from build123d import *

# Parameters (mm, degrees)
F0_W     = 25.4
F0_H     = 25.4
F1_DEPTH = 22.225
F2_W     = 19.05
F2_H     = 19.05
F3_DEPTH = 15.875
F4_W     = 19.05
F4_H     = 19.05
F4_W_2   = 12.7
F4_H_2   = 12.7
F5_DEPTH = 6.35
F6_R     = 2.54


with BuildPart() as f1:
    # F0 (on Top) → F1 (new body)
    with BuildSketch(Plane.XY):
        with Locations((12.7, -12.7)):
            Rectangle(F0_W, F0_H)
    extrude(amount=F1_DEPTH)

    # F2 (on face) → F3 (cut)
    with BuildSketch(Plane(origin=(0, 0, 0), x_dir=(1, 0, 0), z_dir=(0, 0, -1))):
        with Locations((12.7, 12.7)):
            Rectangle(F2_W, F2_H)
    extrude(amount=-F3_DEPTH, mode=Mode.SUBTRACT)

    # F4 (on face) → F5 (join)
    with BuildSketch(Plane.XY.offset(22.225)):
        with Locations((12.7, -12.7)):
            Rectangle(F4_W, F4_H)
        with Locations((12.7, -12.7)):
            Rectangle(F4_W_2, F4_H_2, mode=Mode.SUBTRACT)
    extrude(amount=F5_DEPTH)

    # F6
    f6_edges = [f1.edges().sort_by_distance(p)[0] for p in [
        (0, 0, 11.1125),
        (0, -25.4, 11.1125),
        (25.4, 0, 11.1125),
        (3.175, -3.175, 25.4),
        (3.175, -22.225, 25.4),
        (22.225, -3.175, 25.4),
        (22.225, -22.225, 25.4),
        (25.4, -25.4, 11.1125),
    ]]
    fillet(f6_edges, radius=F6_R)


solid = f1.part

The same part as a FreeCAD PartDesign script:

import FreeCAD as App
import Part
import Sketcher
from FreeCAD import Vector
Q = App.Units.Quantity


def edges_at(feature, points):
    """Names of the edges that pass closest to the given points."""
    edges = feature.Shape.Edges
    near = lambda p: min(range(len(edges)), key=lambda i: edges[i].distToShape(Part.Vertex(*p))[0])
    return sorted({f"Edge{near(p) + 1}" for p in points})

doc = App.newDocument("Part")
params = doc.addObject("Spreadsheet::Sheet", "Params")
for row, (alias, value) in enumerate([
    ("sketch1_width", "1 in"),
    ("pad1_length", "0.875 in"),
    ("sketch2_width", "0.75 in"),
    ("pocket1_length", "0.625 in"),
    ("sketch3_width", "0.5 in"),
    ("sketch3_width2", "0.75 in"),
    ("pad2_length", "0.25 in"),
    ("fillet_radius", "0.1 in"),
], start=1):
    params.set(f"A{row}", alias)
    params.set(f"B{row}", "=" + value)
    params.setAlias(f"B{row}", alias)

body = doc.addObject("PartDesign::Body", "Body")

# Sketch on XY plane
sketch1 = body.newObject("Sketcher::SketchObject", "Sketch")
sketch1.AttachmentSupport = (doc.getObject("XY_Plane"), [""])
sketch1.MapMode = "FlatFace"
sketch1.addGeometry(Part.LineSegment(Vector(0, 0, 0), Vector(0, -25.4, 0)), False)
sketch1.addGeometry(Part.LineSegment(Vector(0, -25.4, 0), Vector(25.4, -25.4, 0)), False)
sketch1.addGeometry(Part.LineSegment(Vector(25.4, -25.4, 0), Vector(25.4, 0, 0)), False)
sketch1.addGeometry(Part.LineSegment(Vector(25.4, 0, 0), Vector(0, 0, 0)), False)
sketch1.addConstraint(Sketcher.Constraint("Coincident", 0, 2, 1, 1))
sketch1.addConstraint(Sketcher.Constraint("Coincident", 1, 2, 2, 1))
sketch1.addConstraint(Sketcher.Constraint("Coincident", 2, 2, 3, 1))
sketch1.addConstraint(Sketcher.Constraint("Coincident", 3, 2, 0, 1))
sketch1.addConstraint(Sketcher.Constraint("Vertical", 0))
sketch1.addConstraint(Sketcher.Constraint("Horizontal", 1))
sketch1.addConstraint(Sketcher.Constraint("Vertical", 2))
sketch1.addConstraint(Sketcher.Constraint("Horizontal", 3))
sketch1.addConstraint(Sketcher.Constraint("Coincident", 3, 2, -1, 1))
sketch1.addConstraint(Sketcher.Constraint("Equal", 3, 0))
sketch1.addConstraint(Sketcher.Constraint("DistanceX", 1, 1, 1, 2, Q("1 in")))
sketch1.setExpression("Constraints[10]", "Params.sketch1_width")
pad1 = body.newObject("PartDesign::Pad", "Pad")
pad1.Profile = sketch1
pad1.setExpression("Length", "Params.pad1_length")

# Sketch on XY plane
sketch2 = body.newObject("Sketcher::SketchObject", "Sketch001")
sketch2.AttachmentSupport = (doc.getObject("XY_Plane"), [""])
sketch2.MapMode = "FlatFace"
sketch2.addGeometry(Part.LineSegment(Vector(3.175, -22.225, 0), Vector(3.175, -3.175, 0)), False)
sketch2.addGeometry(Part.LineSegment(Vector(3.175, -3.175, 0), Vector(22.225, -3.175, 0)), False)
sketch2.addGeometry(Part.LineSegment(Vector(22.225, -3.175, 0), Vector(22.225, -22.225, 0)), False)
sketch2.addGeometry(Part.LineSegment(Vector(22.225, -22.225, 0), Vector(3.175, -22.225, 0)), False)
sketch2.addConstraint(Sketcher.Constraint("Coincident", 0, 2, 1, 1))
sketch2.addConstraint(Sketcher.Constraint("Coincident", 1, 2, 2, 1))
sketch2.addConstraint(Sketcher.Constraint("Coincident", 2, 2, 3, 1))
sketch2.addConstraint(Sketcher.Constraint("Coincident", 3, 2, 0, 1))
sketch2.addConstraint(Sketcher.Constraint("Vertical", 0))
sketch2.addConstraint(Sketcher.Constraint("Horizontal", 1))
sketch2.addConstraint(Sketcher.Constraint("Vertical", 2))
sketch2.addConstraint(Sketcher.Constraint("Horizontal", 3))
sketch2.addConstraint(Sketcher.Constraint("Equal", 3, 0))
sketch2.addConstraint(Sketcher.Constraint("DistanceX", 1, 1, 1, 2, Q("0.75 in")))
sketch2.addConstraint(Sketcher.Constraint("DistanceX", -1, 1, 0, 2, Q("0.125 in")))
sketch2.addConstraint(Sketcher.Constraint("DistanceY", 0, 2, -1, 1, Q("0.125 in")))
sketch2.setExpression("Constraints[9]", "Params.sketch2_width")
pocket1 = body.newObject("PartDesign::Pocket", "Pocket")
pocket1.Profile = sketch2
pocket1.setExpression("Length", "Params.pocket1_length")
pocket1.Reversed = True

# Sketch on XY plane
sketch3 = body.newObject("Sketcher::SketchObject", "Sketch002")
sketch3.AttachmentSupport = (doc.getObject("XY_Plane"), [""])
sketch3.MapMode = "FlatFace"
sketch3.AttachmentOffset = App.Placement(Vector(0, 0, 0.875 * 25.4), App.Rotation())
sketch3.addGeometry(Part.LineSegment(Vector(3.175, -3.175, 0), Vector(3.175, -22.225, 0)), False)
sketch3.addGeometry(Part.LineSegment(Vector(3.175, -22.225, 0), Vector(22.225, -22.225, 0)), False)
sketch3.addGeometry(Part.LineSegment(Vector(22.225, -22.225, 0), Vector(22.225, -3.175, 0)), False)
sketch3.addGeometry(Part.LineSegment(Vector(22.225, -3.175, 0), Vector(3.175, -3.175, 0)), False)
sketch3.addGeometry(Part.LineSegment(Vector(19.05, -19.05, 0), Vector(6.35, -19.05, 0)), False)
sketch3.addGeometry(Part.LineSegment(Vector(6.35, -19.05, 0), Vector(6.35, -6.35, 0)), False)
sketch3.addGeometry(Part.LineSegment(Vector(6.35, -6.35, 0), Vector(19.05, -6.35, 0)), False)
sketch3.addGeometry(Part.LineSegment(Vector(19.05, -6.35, 0), Vector(19.05, -19.05, 0)), False)
sketch3.addConstraint(Sketcher.Constraint("Coincident", 0, 2, 1, 1))
sketch3.addConstraint(Sketcher.Constraint("Coincident", 1, 2, 2, 1))
sketch3.addConstraint(Sketcher.Constraint("Coincident", 2, 2, 3, 1))
sketch3.addConstraint(Sketcher.Constraint("Coincident", 3, 2, 0, 1))
sketch3.addConstraint(Sketcher.Constraint("Coincident", 4, 2, 5, 1))
sketch3.addConstraint(Sketcher.Constraint("Coincident", 5, 2, 6, 1))
sketch3.addConstraint(Sketcher.Constraint("Coincident", 6, 2, 7, 1))
sketch3.addConstraint(Sketcher.Constraint("Coincident", 7, 2, 4, 1))
sketch3.addConstraint(Sketcher.Constraint("Vertical", 0))
sketch3.addConstraint(Sketcher.Constraint("Horizontal", 1))
sketch3.addConstraint(Sketcher.Constraint("Vertical", 2))
sketch3.addConstraint(Sketcher.Constraint("Horizontal", 3))
sketch3.addConstraint(Sketcher.Constraint("Horizontal", 4))
sketch3.addConstraint(Sketcher.Constraint("Vertical", 5))
sketch3.addConstraint(Sketcher.Constraint("Horizontal", 6))
sketch3.addConstraint(Sketcher.Constraint("Vertical", 7))
sketch3.addConstraint(Sketcher.Constraint("Equal", 3, 0))
sketch3.addConstraint(Sketcher.Constraint("Equal", 6, 5))
sketch3.addConstraint(Sketcher.Constraint("DistanceX", 4, 2, 4, 1, Q("0.5 in")))
sketch3.addConstraint(Sketcher.Constraint("DistanceX", 1, 1, 1, 2, Q("0.75 in")))
sketch3.addConstraint(Sketcher.Constraint("DistanceX", -1, 1, 4, 2, Q("0.25 in")))
sketch3.addConstraint(Sketcher.Constraint("DistanceY", 4, 2, -1, 1, Q("0.75 in")))
sketch3.addConstraint(Sketcher.Constraint("DistanceX", -1, 1, 0, 2, Q("0.125 in")))
sketch3.addConstraint(Sketcher.Constraint("DistanceY", 0, 2, -1, 1, Q("0.875 in")))
sketch3.setExpression("Constraints[18]", "Params.sketch3_width")
sketch3.setExpression("Constraints[19]", "Params.sketch3_width2")
pad2 = body.newObject("PartDesign::Pad", "Pad001")
pad2.Profile = sketch3
pad2.setExpression("Length", "Params.pad2_length")
doc.recompute()

fillet = body.newObject("PartDesign::Fillet", "Fillet")
fillet.Base = (pad2, edges_at(pad2, [
    (0, 0, 11.113),
    (0, -25.4, 11.113),
    (25.4, 0, 11.113),
    (3.175, -3.175, 25.4),
    (3.175, -22.225, 25.4),
    (22.225, -3.175, 25.4),
    (22.225, -22.225, 25.4),
    (25.4, -25.4, 11.113),
]))
fillet.setExpression("Radius", "Params.fillet_radius")

doc.recompute()
